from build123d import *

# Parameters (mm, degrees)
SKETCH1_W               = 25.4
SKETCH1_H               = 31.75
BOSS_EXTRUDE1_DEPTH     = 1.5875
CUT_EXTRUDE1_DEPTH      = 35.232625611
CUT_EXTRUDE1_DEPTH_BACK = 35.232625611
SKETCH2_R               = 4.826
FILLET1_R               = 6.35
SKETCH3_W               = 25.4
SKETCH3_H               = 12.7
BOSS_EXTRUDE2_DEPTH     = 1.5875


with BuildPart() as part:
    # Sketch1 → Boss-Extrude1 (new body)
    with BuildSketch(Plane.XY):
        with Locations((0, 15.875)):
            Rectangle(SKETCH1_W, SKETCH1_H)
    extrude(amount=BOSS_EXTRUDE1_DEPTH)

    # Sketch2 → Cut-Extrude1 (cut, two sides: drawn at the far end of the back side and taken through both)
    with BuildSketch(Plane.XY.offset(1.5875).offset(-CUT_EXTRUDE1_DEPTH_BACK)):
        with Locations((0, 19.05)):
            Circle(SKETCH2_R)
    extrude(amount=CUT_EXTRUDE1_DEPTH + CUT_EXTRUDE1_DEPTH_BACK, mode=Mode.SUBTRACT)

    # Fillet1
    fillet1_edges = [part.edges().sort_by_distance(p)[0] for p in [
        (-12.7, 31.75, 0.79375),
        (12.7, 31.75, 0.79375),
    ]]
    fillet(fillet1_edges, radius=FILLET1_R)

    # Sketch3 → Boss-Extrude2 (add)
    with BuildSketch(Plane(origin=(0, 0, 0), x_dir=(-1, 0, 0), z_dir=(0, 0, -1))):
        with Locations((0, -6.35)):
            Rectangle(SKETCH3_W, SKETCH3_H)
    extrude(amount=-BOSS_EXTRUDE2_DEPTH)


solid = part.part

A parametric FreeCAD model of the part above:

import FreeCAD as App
import Part
import Sketcher
Q = App.Units.Quantity


def edges_at(feature, points):
    """Names of the edges that pass closest to the given points."""
    edges = feature.Shape.Edges
    near = lambda p: min(range(len(edges)), key=lambda i: edges[i].distToShape(Part.Vertex(*p))[0])
    return sorted({f"Edge{near(p) + 1}" for p in points})


def add_polygon(sketch, points):
    """Adds a closed chain of lines whose ends are joined by coincident constraints."""
    first, n = sketch.GeometryCount, len(points)
    for a, b in zip(points, points[1:] + points[:1]):
        sketch.addGeometry(Part.LineSegment(App.Vector(*a, 0), App.Vector(*b, 0)), False)
    for i in range(n):
        sketch.addConstraint(Sketcher.Constraint("Coincident", first + i, 2, first + (i + 1) % n, 1))

doc = App.newDocument("Part")
body = doc.addObject("PartDesign::Body", "Body")

sketch1 = body.newObject("Sketcher::SketchObject", "Sketch")
sketch1.AttachmentSupport = (doc.getObject("XY_Plane"), [""])
sketch1.MapMode = "FlatFace"
add_polygon(sketch1, [(-13, 32), (-13, 0), (13, 0), (13, 32)])
sketch1.addConstraint([
    Sketcher.Constraint("Vertical", 0),
    Sketcher.Constraint("Horizontal", 1),
    Sketcher.Constraint("Vertical", 2),
    Sketcher.Constraint("Horizontal", 3),
    Sketcher.Constraint("Symmetric", 0, 2, 1, 2, -1, 1),
    Sketcher.Constraint("DistanceX", 1, 1, 1, 2, Q("1 in")),
    Sketcher.Constraint("DistanceY", 0, 2, 0, 1, Q("1.25 in")),
])
pad1 = body.newObject("PartDesign::Pad", "Pad")
pad1.Profile = sketch1
pad1.Length = Q("0.0625 in")

sketch2 = body.newObject("Sketcher::SketchObject", "Sketch001")
sketch2.AttachmentSupport = (doc.getObject("XY_Plane"), [""])
sketch2.MapMode = "FlatFace"
sketch2.AttachmentOffset = App.Placement(App.Vector(0, 0, 0.0625 * 25.4), App.Rotation())
sketch2.addGeometry(Part.Circle(App.Vector(0, 19.1, 0), App.Vector(0, 0, 1), 4.8), False)
sketch2.addConstraint([
    Sketcher.Constraint("PointOnObject", 0, 3, -2),
    Sketcher.Constraint("Diameter", 0, Q("0.38 in")),
    Sketcher.Constraint("DistanceY", -1, 1, 0, 3, Q("0.75 in")),
])
pocket1 = body.newObject("PartDesign::Pocket", "Pocket")
pocket1.Profile = sketch2
pocket1.Type = "ThroughAll"
pocket1.Midplane = True
doc.recompute()

fillet = body.newObject("PartDesign::Fillet", "Fillet")
fillet.Base = (pocket1, edges_at(pocket1, [(-12.7, 31.75, 0.794), (12.7, 31.75, 0.794)]))
fillet.Radius = Q("0.25 in")

sketch3 = body.newObject("Sketcher::SketchObject", "Sketch002")
sketch3.AttachmentSupport = (doc.getObject("XY_Plane"), [""])
sketch3.MapMode = "FlatFace"
add_polygon(sketch3, [(13, 0), (13, -13), (-13, -13), (-13, 0)])
sketch3.addConstraint([
    Sketcher.Constraint("Vertical", 0),
    Sketcher.Constraint("Horizontal", 1),
    Sketcher.Constraint("Vertical", 2),
    Sketcher.Constraint("Horizontal", 3),
    Sketcher.Constraint("Symmetric", 2, 2, 3, 2, -1, 1),
    Sketcher.Constraint("DistanceX", 1, 2, 1, 1, Q("1 in")),
    Sketcher.Constraint("DistanceY", 0, 2, 0, 1, Q("0.5 in")),
])
pad2 = body.newObject("PartDesign::Pad", "Pad001")
pad2.Profile = sketch3
pad2.Length = Q("0.0625 in")

doc.recompute()
